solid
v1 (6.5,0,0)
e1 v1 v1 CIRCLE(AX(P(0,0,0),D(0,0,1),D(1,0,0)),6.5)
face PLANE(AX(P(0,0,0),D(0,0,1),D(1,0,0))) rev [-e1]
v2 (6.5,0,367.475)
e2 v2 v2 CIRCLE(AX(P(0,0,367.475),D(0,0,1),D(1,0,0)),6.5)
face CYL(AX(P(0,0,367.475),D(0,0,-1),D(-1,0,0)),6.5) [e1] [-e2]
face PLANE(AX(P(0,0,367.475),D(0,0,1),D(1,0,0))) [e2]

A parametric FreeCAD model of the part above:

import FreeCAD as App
import Part
import Sketcher

doc = App.newDocument("Part")
body = doc.addObject("PartDesign::Body", "Body")

# Sketch on XY plane
sketch1 = doc.addObject("Sketcher::SketchObject", "Sketch")
body.addObject(sketch1)
sketch1.AttachmentSupport = (doc.XY_Plane, [""])
sketch1.MapMode = "FlatFace"
sketch1.addGeometry(Part.Circle(App.Vector(0, 0, 0), App.Vector(0, 0, 1), 6), False)
sketch1.addConstraint(Sketcher.Constraint("Coincident", 0, 3, -1, 1))
sketch1.addConstraint(Sketcher.Constraint("Diameter", 0, 13.0))
pad1 = doc.addObject("PartDesign::Pad", "Pad")
body.addObject(pad1)
pad1.Profile = sketch1
pad1.Length = 367.475

doc.recompute()
